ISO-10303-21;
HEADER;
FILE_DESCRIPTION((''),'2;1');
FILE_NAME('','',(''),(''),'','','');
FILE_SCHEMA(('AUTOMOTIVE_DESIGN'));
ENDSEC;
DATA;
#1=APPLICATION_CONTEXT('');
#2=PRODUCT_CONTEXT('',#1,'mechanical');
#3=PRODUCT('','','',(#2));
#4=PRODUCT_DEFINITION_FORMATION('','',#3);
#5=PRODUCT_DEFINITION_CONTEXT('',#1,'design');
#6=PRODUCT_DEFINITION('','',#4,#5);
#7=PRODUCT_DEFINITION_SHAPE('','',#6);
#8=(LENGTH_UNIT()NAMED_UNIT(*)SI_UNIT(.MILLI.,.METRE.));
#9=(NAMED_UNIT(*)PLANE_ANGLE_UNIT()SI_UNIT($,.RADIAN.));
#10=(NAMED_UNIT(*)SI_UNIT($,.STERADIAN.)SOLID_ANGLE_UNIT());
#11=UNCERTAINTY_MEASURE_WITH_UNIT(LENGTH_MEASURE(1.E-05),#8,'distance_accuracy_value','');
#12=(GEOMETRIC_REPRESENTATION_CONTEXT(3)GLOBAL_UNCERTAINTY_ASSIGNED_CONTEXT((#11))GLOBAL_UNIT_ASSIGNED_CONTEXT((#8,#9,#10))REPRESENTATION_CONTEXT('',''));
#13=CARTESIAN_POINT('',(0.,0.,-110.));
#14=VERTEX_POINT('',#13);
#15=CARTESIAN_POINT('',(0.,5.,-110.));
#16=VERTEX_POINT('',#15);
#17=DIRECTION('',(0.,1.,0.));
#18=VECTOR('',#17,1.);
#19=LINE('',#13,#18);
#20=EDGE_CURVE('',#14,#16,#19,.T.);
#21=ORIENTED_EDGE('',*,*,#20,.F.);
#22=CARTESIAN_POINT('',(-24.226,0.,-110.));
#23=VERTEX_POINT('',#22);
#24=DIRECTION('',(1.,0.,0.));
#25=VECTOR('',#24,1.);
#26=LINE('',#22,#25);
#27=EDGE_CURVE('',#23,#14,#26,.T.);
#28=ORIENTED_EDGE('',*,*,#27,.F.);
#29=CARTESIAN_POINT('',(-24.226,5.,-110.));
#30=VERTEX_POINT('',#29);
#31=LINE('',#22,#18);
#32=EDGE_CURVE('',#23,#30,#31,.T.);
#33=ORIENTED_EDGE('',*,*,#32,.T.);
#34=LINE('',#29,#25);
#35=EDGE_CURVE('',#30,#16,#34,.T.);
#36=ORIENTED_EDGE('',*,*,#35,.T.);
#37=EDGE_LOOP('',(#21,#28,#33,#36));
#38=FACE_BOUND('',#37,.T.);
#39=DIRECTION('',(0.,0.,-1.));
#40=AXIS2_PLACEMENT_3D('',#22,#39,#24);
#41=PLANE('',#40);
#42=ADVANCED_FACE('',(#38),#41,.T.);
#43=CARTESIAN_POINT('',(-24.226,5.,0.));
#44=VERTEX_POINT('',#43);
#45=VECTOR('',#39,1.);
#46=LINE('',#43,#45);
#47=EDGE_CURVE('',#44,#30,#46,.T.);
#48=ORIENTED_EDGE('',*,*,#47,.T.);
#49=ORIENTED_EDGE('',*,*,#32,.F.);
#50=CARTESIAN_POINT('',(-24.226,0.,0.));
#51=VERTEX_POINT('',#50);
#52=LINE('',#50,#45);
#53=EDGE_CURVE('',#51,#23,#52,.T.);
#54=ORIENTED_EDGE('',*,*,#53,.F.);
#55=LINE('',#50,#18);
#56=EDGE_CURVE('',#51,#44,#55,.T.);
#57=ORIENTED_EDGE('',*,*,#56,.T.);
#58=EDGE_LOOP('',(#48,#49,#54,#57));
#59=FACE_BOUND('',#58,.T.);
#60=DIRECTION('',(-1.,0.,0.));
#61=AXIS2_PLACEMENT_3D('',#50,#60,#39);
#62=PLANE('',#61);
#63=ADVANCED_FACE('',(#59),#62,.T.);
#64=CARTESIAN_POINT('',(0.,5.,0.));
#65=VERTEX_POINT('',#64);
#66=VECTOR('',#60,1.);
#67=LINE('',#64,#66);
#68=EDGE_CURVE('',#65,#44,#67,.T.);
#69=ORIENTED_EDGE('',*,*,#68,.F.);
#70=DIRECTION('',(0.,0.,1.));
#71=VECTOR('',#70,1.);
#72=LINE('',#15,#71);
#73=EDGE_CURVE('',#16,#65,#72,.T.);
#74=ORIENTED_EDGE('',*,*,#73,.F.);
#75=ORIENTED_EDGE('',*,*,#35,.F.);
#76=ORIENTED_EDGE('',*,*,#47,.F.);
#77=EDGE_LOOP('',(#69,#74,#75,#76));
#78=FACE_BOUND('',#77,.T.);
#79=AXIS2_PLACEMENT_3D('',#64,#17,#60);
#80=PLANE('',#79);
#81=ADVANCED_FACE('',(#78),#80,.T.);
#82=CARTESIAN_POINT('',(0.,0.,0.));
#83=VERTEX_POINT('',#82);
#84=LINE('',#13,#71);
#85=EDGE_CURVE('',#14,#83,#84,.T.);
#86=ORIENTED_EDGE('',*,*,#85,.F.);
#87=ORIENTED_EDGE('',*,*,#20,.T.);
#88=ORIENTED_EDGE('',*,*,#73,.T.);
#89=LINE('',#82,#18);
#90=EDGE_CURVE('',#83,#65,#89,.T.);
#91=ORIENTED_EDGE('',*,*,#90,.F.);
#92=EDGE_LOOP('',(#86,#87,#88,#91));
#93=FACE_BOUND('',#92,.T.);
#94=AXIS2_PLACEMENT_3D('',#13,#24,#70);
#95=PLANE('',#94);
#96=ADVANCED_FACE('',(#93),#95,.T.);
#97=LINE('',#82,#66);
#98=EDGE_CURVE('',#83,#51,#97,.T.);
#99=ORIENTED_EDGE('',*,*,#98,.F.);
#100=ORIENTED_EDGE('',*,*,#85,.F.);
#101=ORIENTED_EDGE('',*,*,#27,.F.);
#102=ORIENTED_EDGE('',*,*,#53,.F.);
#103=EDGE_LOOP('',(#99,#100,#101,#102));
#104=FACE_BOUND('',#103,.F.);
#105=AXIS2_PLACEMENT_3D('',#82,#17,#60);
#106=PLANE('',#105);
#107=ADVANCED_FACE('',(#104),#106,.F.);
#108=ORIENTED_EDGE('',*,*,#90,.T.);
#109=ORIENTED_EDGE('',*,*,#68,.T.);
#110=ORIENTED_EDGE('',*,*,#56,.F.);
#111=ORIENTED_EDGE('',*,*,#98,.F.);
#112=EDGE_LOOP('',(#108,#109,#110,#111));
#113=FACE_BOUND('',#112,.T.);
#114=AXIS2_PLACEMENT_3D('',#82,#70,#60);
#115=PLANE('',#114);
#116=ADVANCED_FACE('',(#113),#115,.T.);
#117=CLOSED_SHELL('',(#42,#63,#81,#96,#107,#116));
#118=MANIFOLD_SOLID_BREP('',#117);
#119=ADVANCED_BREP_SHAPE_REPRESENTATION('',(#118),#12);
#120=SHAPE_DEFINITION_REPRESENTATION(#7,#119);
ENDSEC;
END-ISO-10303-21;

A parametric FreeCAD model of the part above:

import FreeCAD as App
import Part
import Sketcher
from FreeCAD import Vector
Q = App.Units.Quantity


def add_polygon(sketch, points):
    """Adds a closed chain of lines whose ends are joined by coincident constraints."""
    first, n = sketch.GeometryCount, len(points)
    for a, b in zip(points, points[1:] + points[:1]):
        sketch.addGeometry(Part.LineSegment(App.Vector(*a, 0), App.Vector(*b, 0)), False)
    for i in range(n):
        sketch.addConstraint(Sketcher.Constraint("Coincident", first + i, 2, first + (i + 1) % n, 1))

doc = App.newDocument("Part")
body = doc.addObject("PartDesign::Body", "Body")

# Sketch on XZ plane
sketch1 = body.newObject("Sketcher::SketchObject", "Sketch")
sketch1.AttachmentSupport = (doc.getObject("XZ_Plane"), [""])
sketch1.MapMode = "FlatFace"
add_polygon(sketch1, [(-24, 0), (0, 0), (0, -110), (-24, -110)])  # lines 0-3
sketch1.addConstraint([
    Sketcher.Constraint("Horizontal", 0),
    Sketcher.Constraint("Vertical", 1),
    Sketcher.Constraint("Horizontal", 2),
    Sketcher.Constraint("Vertical", 3),
    Sketcher.Constraint("Coincident", 0, 2, -1, 1),
    Sketcher.Constraint("DistanceY", 1, 2, 1, 1, Q("110 mm")),
    Sketcher.Constraint("DistanceX", 0, 1, 0, 2, Q("24.226 mm")),
])
pad1 = body.newObject("PartDesign::Pad", "Pad")
pad1.Profile = sketch1
pad1.Length = 5
pad1.Reversed = True

doc.recompute()
